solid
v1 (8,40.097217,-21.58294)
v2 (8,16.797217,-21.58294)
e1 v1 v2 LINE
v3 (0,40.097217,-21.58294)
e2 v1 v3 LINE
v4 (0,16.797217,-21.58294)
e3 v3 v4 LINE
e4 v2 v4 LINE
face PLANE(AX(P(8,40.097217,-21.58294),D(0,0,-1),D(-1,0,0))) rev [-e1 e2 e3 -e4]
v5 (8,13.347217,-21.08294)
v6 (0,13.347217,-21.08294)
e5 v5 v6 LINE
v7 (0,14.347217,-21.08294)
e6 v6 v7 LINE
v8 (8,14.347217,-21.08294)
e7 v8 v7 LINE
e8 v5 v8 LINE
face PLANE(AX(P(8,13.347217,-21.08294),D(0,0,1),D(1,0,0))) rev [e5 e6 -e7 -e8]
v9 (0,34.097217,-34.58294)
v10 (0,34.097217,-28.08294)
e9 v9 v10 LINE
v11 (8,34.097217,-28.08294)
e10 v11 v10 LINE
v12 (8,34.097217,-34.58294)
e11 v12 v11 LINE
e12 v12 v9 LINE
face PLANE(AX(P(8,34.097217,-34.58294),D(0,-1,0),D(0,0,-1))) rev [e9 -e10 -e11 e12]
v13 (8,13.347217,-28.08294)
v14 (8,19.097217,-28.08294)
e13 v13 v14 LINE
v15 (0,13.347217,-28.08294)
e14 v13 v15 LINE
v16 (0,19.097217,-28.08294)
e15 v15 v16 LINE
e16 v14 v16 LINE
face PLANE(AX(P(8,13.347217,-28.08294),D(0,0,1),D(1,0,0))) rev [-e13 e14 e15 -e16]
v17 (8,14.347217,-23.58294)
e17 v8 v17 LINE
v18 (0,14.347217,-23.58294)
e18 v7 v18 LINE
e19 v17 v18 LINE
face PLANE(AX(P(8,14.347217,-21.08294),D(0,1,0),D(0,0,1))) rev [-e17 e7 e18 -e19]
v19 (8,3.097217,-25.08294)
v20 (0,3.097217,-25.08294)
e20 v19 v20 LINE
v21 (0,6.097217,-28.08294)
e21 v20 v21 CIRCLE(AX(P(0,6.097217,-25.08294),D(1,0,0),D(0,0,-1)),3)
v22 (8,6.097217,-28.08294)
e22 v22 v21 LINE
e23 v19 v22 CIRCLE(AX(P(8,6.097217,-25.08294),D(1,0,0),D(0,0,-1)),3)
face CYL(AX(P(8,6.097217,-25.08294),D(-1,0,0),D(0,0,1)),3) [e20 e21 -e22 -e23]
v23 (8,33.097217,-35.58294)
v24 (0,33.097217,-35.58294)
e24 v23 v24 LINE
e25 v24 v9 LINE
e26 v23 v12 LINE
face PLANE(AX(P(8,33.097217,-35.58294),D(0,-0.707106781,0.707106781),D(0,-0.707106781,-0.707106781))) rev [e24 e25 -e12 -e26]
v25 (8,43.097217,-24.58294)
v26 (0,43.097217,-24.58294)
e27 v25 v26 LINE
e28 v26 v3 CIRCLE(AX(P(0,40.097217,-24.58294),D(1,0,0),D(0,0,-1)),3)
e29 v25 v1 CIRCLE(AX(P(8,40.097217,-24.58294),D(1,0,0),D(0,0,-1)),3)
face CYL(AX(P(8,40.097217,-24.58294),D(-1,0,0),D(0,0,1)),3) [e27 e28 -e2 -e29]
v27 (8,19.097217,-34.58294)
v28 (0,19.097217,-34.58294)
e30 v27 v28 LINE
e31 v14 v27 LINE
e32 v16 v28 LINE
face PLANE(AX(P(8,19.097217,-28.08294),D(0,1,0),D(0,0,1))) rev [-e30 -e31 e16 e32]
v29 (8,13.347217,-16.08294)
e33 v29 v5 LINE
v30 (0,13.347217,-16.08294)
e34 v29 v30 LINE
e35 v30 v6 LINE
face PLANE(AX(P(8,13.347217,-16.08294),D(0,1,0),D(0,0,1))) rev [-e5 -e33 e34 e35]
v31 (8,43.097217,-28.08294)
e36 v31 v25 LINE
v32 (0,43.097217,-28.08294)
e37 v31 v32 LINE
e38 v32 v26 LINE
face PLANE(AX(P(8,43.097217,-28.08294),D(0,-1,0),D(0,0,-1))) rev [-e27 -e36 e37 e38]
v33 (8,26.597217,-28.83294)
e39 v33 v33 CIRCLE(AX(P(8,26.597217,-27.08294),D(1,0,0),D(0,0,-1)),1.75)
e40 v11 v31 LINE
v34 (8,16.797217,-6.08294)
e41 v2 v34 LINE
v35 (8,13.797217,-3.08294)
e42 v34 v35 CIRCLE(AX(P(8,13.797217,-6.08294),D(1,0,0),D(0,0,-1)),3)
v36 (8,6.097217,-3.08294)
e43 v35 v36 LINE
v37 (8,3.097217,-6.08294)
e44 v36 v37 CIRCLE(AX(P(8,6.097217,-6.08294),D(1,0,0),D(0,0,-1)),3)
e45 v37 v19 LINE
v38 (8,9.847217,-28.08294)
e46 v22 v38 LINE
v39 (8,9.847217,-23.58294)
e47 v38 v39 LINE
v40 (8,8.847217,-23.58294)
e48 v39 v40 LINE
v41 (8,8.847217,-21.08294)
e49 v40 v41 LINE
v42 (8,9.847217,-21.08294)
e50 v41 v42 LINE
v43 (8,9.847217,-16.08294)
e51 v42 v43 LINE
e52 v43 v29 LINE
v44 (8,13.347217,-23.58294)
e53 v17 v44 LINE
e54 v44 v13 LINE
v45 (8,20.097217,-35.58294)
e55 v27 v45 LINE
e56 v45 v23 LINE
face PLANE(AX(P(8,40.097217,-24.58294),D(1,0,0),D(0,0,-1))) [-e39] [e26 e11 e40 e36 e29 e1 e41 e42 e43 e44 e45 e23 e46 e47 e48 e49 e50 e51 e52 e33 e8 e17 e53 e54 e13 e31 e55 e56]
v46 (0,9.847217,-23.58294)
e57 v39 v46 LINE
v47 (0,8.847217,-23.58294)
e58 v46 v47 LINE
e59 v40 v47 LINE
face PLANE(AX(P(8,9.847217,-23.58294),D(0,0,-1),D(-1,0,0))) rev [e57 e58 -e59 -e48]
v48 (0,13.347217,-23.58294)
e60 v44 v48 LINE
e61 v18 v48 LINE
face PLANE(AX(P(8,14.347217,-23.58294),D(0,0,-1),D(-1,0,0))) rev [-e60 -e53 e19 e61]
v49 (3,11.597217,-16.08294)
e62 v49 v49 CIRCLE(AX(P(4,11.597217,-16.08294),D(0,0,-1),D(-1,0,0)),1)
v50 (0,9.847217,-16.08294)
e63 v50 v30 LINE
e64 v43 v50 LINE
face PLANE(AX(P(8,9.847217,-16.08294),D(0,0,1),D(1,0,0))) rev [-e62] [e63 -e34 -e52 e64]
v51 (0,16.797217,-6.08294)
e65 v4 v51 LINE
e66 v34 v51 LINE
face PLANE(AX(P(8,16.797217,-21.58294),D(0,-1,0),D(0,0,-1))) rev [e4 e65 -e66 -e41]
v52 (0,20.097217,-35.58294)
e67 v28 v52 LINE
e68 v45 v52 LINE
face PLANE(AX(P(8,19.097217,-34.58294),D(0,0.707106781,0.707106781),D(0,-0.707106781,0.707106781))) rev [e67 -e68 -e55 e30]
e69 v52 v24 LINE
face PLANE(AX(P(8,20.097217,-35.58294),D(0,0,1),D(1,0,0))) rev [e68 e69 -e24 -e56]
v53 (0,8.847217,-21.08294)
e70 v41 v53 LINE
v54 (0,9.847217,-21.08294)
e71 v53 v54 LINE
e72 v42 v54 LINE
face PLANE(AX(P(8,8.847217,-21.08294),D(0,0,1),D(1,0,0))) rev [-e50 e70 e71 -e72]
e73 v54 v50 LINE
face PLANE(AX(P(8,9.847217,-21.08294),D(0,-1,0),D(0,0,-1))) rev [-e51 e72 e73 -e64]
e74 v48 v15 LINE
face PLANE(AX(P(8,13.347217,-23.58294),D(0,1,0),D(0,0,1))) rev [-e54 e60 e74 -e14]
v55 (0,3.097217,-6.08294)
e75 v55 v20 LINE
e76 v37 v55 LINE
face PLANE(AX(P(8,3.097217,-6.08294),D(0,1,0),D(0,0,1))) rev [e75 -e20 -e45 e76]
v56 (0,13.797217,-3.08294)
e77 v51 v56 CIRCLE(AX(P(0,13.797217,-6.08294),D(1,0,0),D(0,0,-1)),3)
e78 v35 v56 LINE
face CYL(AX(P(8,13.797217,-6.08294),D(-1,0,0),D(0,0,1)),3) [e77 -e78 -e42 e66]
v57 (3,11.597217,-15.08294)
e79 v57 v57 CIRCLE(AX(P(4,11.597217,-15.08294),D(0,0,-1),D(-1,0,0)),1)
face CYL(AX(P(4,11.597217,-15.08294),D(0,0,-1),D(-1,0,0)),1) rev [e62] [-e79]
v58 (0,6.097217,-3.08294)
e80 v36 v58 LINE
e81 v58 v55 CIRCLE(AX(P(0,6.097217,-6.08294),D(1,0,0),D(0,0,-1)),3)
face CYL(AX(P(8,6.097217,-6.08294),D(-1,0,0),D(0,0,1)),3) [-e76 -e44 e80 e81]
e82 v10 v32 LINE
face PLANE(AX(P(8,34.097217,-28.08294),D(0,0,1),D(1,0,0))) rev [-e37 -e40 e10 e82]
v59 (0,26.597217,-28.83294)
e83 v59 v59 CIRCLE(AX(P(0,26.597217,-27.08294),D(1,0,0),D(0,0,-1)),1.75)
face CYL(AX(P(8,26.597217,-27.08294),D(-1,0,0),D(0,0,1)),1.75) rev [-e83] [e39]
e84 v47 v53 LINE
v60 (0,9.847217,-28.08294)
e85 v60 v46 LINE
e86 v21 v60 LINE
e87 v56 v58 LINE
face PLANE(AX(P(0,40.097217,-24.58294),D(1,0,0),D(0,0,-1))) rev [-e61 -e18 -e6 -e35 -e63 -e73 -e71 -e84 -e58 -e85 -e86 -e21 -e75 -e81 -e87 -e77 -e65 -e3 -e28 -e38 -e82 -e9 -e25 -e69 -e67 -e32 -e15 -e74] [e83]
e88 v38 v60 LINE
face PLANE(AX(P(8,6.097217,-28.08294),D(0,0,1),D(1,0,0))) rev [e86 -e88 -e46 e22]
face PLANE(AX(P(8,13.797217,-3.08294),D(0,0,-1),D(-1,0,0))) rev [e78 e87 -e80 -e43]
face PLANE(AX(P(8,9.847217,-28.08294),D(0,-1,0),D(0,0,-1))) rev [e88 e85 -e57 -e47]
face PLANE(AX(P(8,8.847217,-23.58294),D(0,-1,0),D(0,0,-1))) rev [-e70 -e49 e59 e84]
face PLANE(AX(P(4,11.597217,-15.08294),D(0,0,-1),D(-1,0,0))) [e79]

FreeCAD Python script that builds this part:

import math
import FreeCAD as App
import Part
import Sketcher

V = App.Vector

doc = App.newDocument("Part")
body = doc.addObject("PartDesign::Body", "Body")

# Sketch on YZ plane
sketch1 = body.newObject("Sketcher::SketchObject", "Sketch")
sketch1.AttachmentSupport = (doc.getObject("YZ_Plane"), [""])
sketch1.MapMode = "FlatFace"
sketch1.addGeometry(Part.LineSegment(V(19.1, -28.1, 0), V(19.1, -34.6, 0)), False)
sketch1.addGeometry(Part.LineSegment(V(19.1, -34.6, 0), V(20.1, -35.6, 0)), False)
sketch1.addGeometry(Part.LineSegment(V(20.1, -35.6, 0), V(33.1, -35.6, 0)), False)
sketch1.addGeometry(Part.LineSegment(V(33.1, -35.6, 0), V(34.1, -34.6, 0)), False)
sketch1.addGeometry(Part.LineSegment(V(34.1, -34.6, 0), V(34.1, -28.1, 0)), False)
sketch1.addGeometry(Part.LineSegment(V(34.1, -28.1, 0), V(43.1, -28.1, 0)), False)
sketch1.addGeometry(Part.LineSegment(V(43.1, -28.1, 0), V(43.1, -24.6, 0)), False)
sketch1.addGeometry(Part.ArcOfCircle(Part.Circle(V(40.1, -24.6, 0), V(0, 0, 1), 3), math.radians(0), math.radians(90)), False)
sketch1.addGeometry(Part.LineSegment(V(40.1, -21.6, 0), V(16.8, -21.6, 0)), False)
sketch1.addGeometry(Part.LineSegment(V(16.8, -21.6, 0), V(16.8, -6.1, 0)), False)
sketch1.addGeometry(Part.ArcOfCircle(Part.Circle(V(13.8, -6.1, 0), V(0, 0, 1), 3), math.radians(0), math.radians(90)), False)
sketch1.addGeometry(Part.LineSegment(V(13.8, -3.1, 0), V(6.1, -3.1, 0)), False)
sketch1.addGeometry(Part.ArcOfCircle(Part.Circle(V(6.1, -6.1, 0), V(0, 0, 1), 3), math.radians(90), math.radians(180)), False)
sketch1.addGeometry(Part.LineSegment(V(3.1, -6.1, 0), V(3.1, -25.1, 0)), False)
sketch1.addGeometry(Part.ArcOfCircle(Part.Circle(V(6.1, -25.1, 0), V(0, 0, 1), 3), math.radians(-180), math.radians(-90)), False)
sketch1.addGeometry(Part.LineSegment(V(6.1, -28.1, 0), V(9.8, -28.1, 0)), False)
sketch1.addGeometry(Part.LineSegment(V(9.8, -28.1, 0), V(9.8, -23.6, 0)), False)
sketch1.addGeometry(Part.LineSegment(V(9.8, -23.6, 0), V(8.8, -23.6, 0)), False)
sketch1.addGeometry(Part.LineSegment(V(8.8, -23.6, 0), V(8.8, -21.1, 0)), False)
sketch1.addGeometry(Part.LineSegment(V(8.8, -21.1, 0), V(9.8, -21.1, 0)), False)
sketch1.addGeometry(Part.LineSegment(V(9.8, -21.1, 0), V(9.8, -16.1, 0)), False)
sketch1.addGeometry(Part.LineSegment(V(9.8, -16.1, 0), V(13.3, -16.1, 0)), False)
sketch1.addGeometry(Part.LineSegment(V(13.3, -16.1, 0), V(13.3, -21.1, 0)), False)
sketch1.addGeometry(Part.LineSegment(V(13.3, -21.1, 0), V(14.3, -21.1, 0)), False)
sketch1.addGeometry(Part.LineSegment(V(14.3, -21.1, 0), V(14.3, -23.6, 0)), False)
sketch1.addGeometry(Part.LineSegment(V(14.3, -23.6, 0), V(13.3, -23.6, 0)), False)
sketch1.addGeometry(Part.LineSegment(V(13.3, -23.6, 0), V(13.3, -28.1, 0)), False)
sketch1.addGeometry(Part.LineSegment(V(13.3, -28.1, 0), V(19.1, -28.1, 0)), False)
sketch1.addGeometry(Part.Circle(V(26.6, -27.1, 0), V(0, 0, 1), 1.8), False)
sketch1.addConstraint(Sketcher.Constraint("Coincident", 0, 2, 1, 1))
sketch1.addConstraint(Sketcher.Constraint("Coincident", 1, 2, 2, 1))
sketch1.addConstraint(Sketcher.Constraint("Coincident", 2, 2, 3, 1))
sketch1.addConstraint(Sketcher.Constraint("Coincident", 3, 2, 4, 1))
sketch1.addConstraint(Sketcher.Constraint("Coincident", 4, 2, 5, 1))
sketch1.addConstraint(Sketcher.Constraint("Coincident", 5, 2, 6, 1))
sketch1.addConstraint(Sketcher.Constraint("Tangent", 6, 2, 7, 1))
sketch1.addConstraint(Sketcher.Constraint("Tangent", 7, 2, 8, 1))
sketch1.addConstraint(Sketcher.Constraint("Coincident", 8, 2, 9, 1))
sketch1.addConstraint(Sketcher.Constraint("Tangent", 9, 2, 10, 1))
sketch1.addConstraint(Sketcher.Constraint("Tangent", 10, 2, 11, 1))
sketch1.addConstraint(Sketcher.Constraint("Tangent", 11, 2, 12, 1))
sketch1.addConstraint(Sketcher.Constraint("Tangent", 12, 2, 13, 1))
sketch1.addConstraint(Sketcher.Constraint("Tangent", 13, 2, 14, 1))
sketch1.addConstraint(Sketcher.Constraint("Tangent", 14, 2, 15, 1))
sketch1.addConstraint(Sketcher.Constraint("Coincident", 15, 2, 16, 1))
sketch1.addConstraint(Sketcher.Constraint("Coincident", 16, 2, 17, 1))
sketch1.addConstraint(Sketcher.Constraint("Coincident", 17, 2, 18, 1))
sketch1.addConstraint(Sketcher.Constraint("Coincident", 18, 2, 19, 1))
sketch1.addConstraint(Sketcher.Constraint("Coincident", 19, 2, 20, 1))
sketch1.addConstraint(Sketcher.Constraint("Coincident", 20, 2, 21, 1))
sketch1.addConstraint(Sketcher.Constraint("Coincident", 21, 2, 22, 1))
sketch1.addConstraint(Sketcher.Constraint("Coincident", 22, 2, 23, 1))
sketch1.addConstraint(Sketcher.Constraint("Coincident", 23, 2, 24, 1))
sketch1.addConstraint(Sketcher.Constraint("Coincident", 24, 2, 25, 1))
sketch1.addConstraint(Sketcher.Constraint("Coincident", 25, 2, 26, 1))
sketch1.addConstraint(Sketcher.Constraint("Coincident", 26, 2, 27, 1))
sketch1.addConstraint(Sketcher.Constraint("Coincident", 27, 2, 0, 1))
sketch1.addConstraint(Sketcher.Constraint("Vertical", 0))
sketch1.addConstraint(Sketcher.Constraint("Horizontal", 2))
sketch1.addConstraint(Sketcher.Constraint("Vertical", 4))
sketch1.addConstraint(Sketcher.Constraint("Horizontal", 5))
sketch1.addConstraint(Sketcher.Constraint("Vertical", 6))
sketch1.addConstraint(Sketcher.Constraint("Horizontal", 8))
sketch1.addConstraint(Sketcher.Constraint("Vertical", 9))
sketch1.addConstraint(Sketcher.Constraint("Horizontal", 11))
sketch1.addConstraint(Sketcher.Constraint("Vertical", 13))
sketch1.addConstraint(Sketcher.Constraint("Horizontal", 15))
sketch1.addConstraint(Sketcher.Constraint("Vertical", 16))
sketch1.addConstraint(Sketcher.Constraint("Horizontal", 17))
sketch1.addConstraint(Sketcher.Constraint("Vertical", 18))
sketch1.addConstraint(Sketcher.Constraint("Horizontal", 19))
sketch1.addConstraint(Sketcher.Constraint("Vertical", 20))
sketch1.addConstraint(Sketcher.Constraint("Horizontal", 21))
sketch1.addConstraint(Sketcher.Constraint("Vertical", 22))
sketch1.addConstraint(Sketcher.Constraint("Horizontal", 23))
sketch1.addConstraint(Sketcher.Constraint("Vertical", 24))
sketch1.addConstraint(Sketcher.Constraint("Horizontal", 25))
sketch1.addConstraint(Sketcher.Constraint("Vertical", 26))
sketch1.addConstraint(Sketcher.Constraint("Horizontal", 27))
sketch1.addConstraint(Sketcher.Constraint("Equal", 7, 10))
sketch1.addConstraint(Sketcher.Constraint("Equal", 10, 12))
sketch1.addConstraint(Sketcher.Constraint("Equal", 12, 14))
sketch1.addConstraint(Sketcher.Constraint("Perpendicular", 1, 3))
sketch1.addConstraint(Sketcher.Constraint("Horizontal", 0, 2, 3, 2))
sketch1.addConstraint(Sketcher.Constraint("Horizontal", 5, 2, 14, 2))
sketch1.addConstraint(Sketcher.Constraint("Horizontal", 19, 2, 22, 2))
sketch1.addConstraint(Sketcher.Constraint("Horizontal", 17, 2, 24, 2))
sketch1.addConstraint(Sketcher.Constraint("Horizontal", 15, 2, 26, 2))
sketch1.addConstraint(Sketcher.Constraint("Vertical", 16, 2, 19, 2))
sketch1.addConstraint(Sketcher.Constraint("Vertical", 22, 2, 25, 2))
sketch1.addConstraint(Sketcher.Constraint("Equal", 19, 23))
sketch1.addConstraint(Sketcher.Constraint("Equal", 21, 6))
sketch1.addConstraint(Sketcher.Constraint("Equal", 1, 3))
sketch1.addConstraint(Sketcher.Constraint("Radius", 7, 3.0))
sketch1.addConstraint(Sketcher.Constraint("Diameter", 28, 3.5))
sketch1.addConstraint(Sketcher.Constraint("DistanceX", 2, 1, 2, 2, 13.0))
sketch1.addConstraint(Sketcher.Constraint("DistanceX", 5, 1, 5, 2, 9.0))
sketch1.addConstraint(Sketcher.Constraint("DistanceX", 17, 2, 17, 1, 1.0))
sketch1.addConstraint(Sketcher.Constraint("DistanceY", 13, 2, 13, 1, 19.0))
sketch1.addConstraint(Sketcher.Constraint("DistanceY", 20, 1, 20, 2, 5.0))
sketch1.addConstraint(Sketcher.Constraint("DistanceX", 8, 2, 8, 1, 23.3))
sketch1.addConstraint(Sketcher.Constraint("DistanceX", 11, 2, 11, 1, 7.7))
sketch1.addConstraint(Sketcher.Constraint("DistanceX", 21, 1, 21, 2, 3.5))
sketch1.addConstraint(Sketcher.Constraint("DistanceY", 0, 2, 0, 1, 6.5))
sketch1.addConstraint(Sketcher.Constraint("DistanceY", 16, 1, 16, 2, 4.5))
sketch1.addConstraint(Sketcher.Constraint("DistanceY", 18, 1, 18, 2, 2.5))
sketch1.addConstraint(Sketcher.Constraint("DistanceY", 28, 3, 14, 3, 2.0))
sketch1.addConstraint(Sketcher.Constraint("DistanceX", 14, 3, 0, 2, 13.0))
sketch1.addConstraint(Sketcher.Constraint("DistanceX", 15, 1, 15, 2, 3.75))
sketch1.addConstraint(Sketcher.Constraint("DistanceX", 28, 3, 7, 3, 13.5))
sketch1.addConstraint(Sketcher.Constraint("DistanceY", 7, 3, -1, 1, 24.58294))
sketch1.addConstraint(Sketcher.Constraint("DistanceX", -1, 1, 7, 3, 40.097217))
pad1 = body.newObject("PartDesign::Pad", "Pad")
pad1.Profile = sketch1
pad1.Length = 8

# Sketch on XY plane
sketch2 = body.newObject("Sketcher::SketchObject", "Sketch001")
sketch2.AttachmentSupport = (doc.getObject("XY_Plane"), [""])
sketch2.MapMode = "FlatFace"
sketch2.AttachmentOffset = App.Placement(V(0, 0, -16.08294), App.Rotation())
sketch2.addGeometry(Part.Circle(V(4, 11.6, 0), V(0, 0, 1), 1), False)
sketch2.addConstraint(Sketcher.Constraint("Diameter", 0, 2.0))
sketch2.addConstraint(Sketcher.Constraint("DistanceX", -1, 1, 0, 3, 4.0))
sketch2.addConstraint(Sketcher.Constraint("DistanceY", -1, 1, 0, 3, 11.597217))
pocket1 = body.newObject("PartDesign::Pocket", "Pocket")
pocket1.Profile = sketch2
pocket1.Length = 1
pocket1.Reversed = True

doc.recompute()
